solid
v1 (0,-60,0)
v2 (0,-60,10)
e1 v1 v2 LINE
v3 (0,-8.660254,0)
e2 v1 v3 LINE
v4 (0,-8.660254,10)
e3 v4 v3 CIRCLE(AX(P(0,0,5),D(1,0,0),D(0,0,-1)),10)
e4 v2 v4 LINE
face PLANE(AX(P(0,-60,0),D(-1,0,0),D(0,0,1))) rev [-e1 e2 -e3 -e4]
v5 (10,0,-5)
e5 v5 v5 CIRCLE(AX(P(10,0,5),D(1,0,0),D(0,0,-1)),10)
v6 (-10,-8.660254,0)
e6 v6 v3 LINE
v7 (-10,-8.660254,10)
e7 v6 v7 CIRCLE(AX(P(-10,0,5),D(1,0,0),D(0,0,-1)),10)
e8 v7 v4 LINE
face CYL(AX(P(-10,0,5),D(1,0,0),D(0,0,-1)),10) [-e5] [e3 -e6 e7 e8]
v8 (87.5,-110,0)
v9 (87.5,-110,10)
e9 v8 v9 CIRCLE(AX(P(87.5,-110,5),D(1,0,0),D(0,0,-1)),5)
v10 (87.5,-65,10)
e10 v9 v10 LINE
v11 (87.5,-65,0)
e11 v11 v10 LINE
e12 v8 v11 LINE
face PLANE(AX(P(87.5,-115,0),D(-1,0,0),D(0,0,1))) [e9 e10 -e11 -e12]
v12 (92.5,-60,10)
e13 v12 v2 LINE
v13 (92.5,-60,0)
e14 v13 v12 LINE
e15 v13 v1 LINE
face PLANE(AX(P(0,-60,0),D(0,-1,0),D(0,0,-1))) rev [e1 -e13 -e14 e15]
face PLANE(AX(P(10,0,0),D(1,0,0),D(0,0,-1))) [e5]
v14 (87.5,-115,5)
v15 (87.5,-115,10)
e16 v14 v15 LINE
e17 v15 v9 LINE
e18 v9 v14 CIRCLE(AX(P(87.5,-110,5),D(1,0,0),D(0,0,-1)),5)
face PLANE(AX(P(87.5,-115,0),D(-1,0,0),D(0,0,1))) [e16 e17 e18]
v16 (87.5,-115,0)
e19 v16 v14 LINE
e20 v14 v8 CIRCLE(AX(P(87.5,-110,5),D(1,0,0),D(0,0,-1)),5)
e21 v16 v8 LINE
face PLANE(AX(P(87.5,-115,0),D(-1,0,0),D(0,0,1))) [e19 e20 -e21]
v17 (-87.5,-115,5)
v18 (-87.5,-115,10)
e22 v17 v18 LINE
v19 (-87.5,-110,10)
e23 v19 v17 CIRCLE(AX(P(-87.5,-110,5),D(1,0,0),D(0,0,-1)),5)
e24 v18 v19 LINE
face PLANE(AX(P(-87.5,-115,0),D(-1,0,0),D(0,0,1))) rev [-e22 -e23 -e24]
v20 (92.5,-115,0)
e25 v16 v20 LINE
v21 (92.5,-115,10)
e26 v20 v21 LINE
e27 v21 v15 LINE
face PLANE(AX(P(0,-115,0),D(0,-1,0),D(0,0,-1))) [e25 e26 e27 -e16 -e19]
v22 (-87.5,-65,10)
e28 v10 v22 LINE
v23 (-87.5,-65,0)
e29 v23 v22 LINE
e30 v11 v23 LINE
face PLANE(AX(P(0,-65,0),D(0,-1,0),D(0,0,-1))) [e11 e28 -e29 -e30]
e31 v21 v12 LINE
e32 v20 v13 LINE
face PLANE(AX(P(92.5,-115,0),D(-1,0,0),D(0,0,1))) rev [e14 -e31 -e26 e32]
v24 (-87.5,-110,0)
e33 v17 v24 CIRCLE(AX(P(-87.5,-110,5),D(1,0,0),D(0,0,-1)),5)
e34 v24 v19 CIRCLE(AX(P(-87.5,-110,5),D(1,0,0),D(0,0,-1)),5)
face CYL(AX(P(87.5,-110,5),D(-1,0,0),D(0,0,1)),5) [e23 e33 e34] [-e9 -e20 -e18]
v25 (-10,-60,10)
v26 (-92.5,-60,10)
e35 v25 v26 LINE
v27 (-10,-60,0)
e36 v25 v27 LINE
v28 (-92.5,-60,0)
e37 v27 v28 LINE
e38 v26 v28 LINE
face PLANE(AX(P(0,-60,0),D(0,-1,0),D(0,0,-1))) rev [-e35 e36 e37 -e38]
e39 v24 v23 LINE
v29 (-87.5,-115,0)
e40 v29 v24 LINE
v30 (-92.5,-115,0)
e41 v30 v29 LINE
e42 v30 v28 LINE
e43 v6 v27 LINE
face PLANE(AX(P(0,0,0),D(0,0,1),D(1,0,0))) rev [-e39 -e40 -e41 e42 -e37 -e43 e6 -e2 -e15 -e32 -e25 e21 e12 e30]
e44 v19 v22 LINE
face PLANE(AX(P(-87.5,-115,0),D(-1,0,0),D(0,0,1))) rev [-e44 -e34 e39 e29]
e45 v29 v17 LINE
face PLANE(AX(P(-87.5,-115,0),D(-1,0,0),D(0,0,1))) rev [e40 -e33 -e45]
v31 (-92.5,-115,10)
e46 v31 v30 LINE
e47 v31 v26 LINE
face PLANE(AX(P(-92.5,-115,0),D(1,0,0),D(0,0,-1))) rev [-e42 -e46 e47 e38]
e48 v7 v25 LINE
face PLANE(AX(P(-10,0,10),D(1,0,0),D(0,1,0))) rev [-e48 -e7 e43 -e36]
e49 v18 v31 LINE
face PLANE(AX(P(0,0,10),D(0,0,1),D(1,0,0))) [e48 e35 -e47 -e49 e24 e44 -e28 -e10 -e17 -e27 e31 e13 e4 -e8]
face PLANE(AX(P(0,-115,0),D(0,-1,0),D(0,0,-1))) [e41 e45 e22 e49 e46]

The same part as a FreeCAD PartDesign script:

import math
import FreeCAD as App
import Part
import Sketcher
from FreeCAD import Vector
Q = App.Units.Quantity


def add_polygon(sketch, points):
    """Adds a closed chain of lines whose ends are joined by coincident constraints."""
    first, n = sketch.GeometryCount, len(points)
    for a, b in zip(points, points[1:] + points[:1]):
        sketch.addGeometry(Part.LineSegment(App.Vector(*a, 0), App.Vector(*b, 0)), False)
    for i in range(n):
        sketch.addConstraint(Sketcher.Constraint("Coincident", first + i, 2, first + (i + 1) % n, 1))

doc = App.newDocument("Part")
body = doc.addObject("PartDesign::Body", "Body")

sketch1 = body.newObject("Sketcher::SketchObject", "Sketch")
sketch1.AttachmentSupport = (doc.getObject("XY_Plane"), [""])
sketch1.MapMode = "FlatFace"
sketch1.addGeometry([
    Part.ArcOfCircle(Part.Circle(Vector(0, 0, 0), Vector(0, 0, 1), 10), math.radians(0), math.radians(180)),
    Part.LineSegment(Vector(-10, 0, 0), Vector(-10, -60, 0)),
    Part.LineSegment(Vector(-10, -60, 0), Vector(10, -60, 0)),
    Part.LineSegment(Vector(10, -60, 0), Vector(10, 0, 0)),
], False)
sketch1.addConstraint([
    Sketcher.Constraint("Tangent", 0, 2, 1, 1),
    Sketcher.Constraint("Coincident", 1, 2, 2, 1),
    Sketcher.Constraint("Coincident", 2, 2, 3, 1),
    Sketcher.Constraint("Tangent", 3, 2, 0, 1),
    Sketcher.Constraint("Vertical", 1),
    Sketcher.Constraint("Horizontal", 2),
    Sketcher.Constraint("Vertical", 3),
    Sketcher.Constraint("Coincident", 0, 3, -1, 1),
    Sketcher.Constraint("Radius", 0, Q("10 mm")),
    Sketcher.Constraint("DistanceY", 1, 2, 1, 1, Q("60 mm")),
])
pad1 = body.newObject("PartDesign::Pad", "Pad")
pad1.Profile = sketch1
pad1.Length = 10

sketch2 = body.newObject("Sketcher::SketchObject", "Sketch001")
sketch2.AttachmentSupport = (doc.getObject("XY_Plane"), [""])
sketch2.MapMode = "FlatFace"
sketch2.AttachmentOffset = App.Placement(Vector(0, 0, -10), App.Rotation())
sketch2.addGeometry(Part.Circle(Vector(0, 0, 0), Vector(0, 0, 1), 10), False)
sketch2.addConstraint([
    Sketcher.Constraint("Coincident", 0, 3, -1, 1),
    Sketcher.Constraint("Diameter", 0, Q("20 mm")),
])
pad2 = body.newObject("PartDesign::Pad", "Pad001")
pad2.Profile = sketch2
pad2.Length = 10
body2 = doc.addObject("PartDesign::Body", "Body001")

sketch3 = body2.newObject("Sketcher::SketchObject", "Sketch002")
sketch3.AttachmentSupport = (doc.getObject("XZ_Plane001"), [""])
sketch3.MapMode = "FlatFace"
sketch3.AttachmentOffset = App.Placement(Vector(0, 0, 60), App.Rotation())
add_polygon(sketch3, [(-92, 10), (-92, 0), (-88, 0), (-88, 10)])
sketch3.addConstraint([
    Sketcher.Constraint("Vertical", 0),
    Sketcher.Constraint("Horizontal", 1),
    Sketcher.Constraint("Vertical", 2),
    Sketcher.Constraint("Horizontal", 3),
    Sketcher.Constraint("PointOnObject", 0, 2, -1),
    Sketcher.Constraint("DistanceX", 1, 1, 1, 2, Q("5 mm")),
    Sketcher.Constraint("DistanceY", 0, 2, 0, 1, Q("10 mm")),
    Sketcher.Constraint("DistanceX", 0, 2, -1, 1, Q("92.5 mm")),
])
pad3 = body2.newObject("PartDesign::Pad", "Pad002")
pad3.Profile = sketch3
pad3.Length = 55
body3 = doc.addObject("PartDesign::Body", "Body002")

sketch4 = body3.newObject("Sketcher::SketchObject", "Sketch003")
sketch4.AttachmentSupport = (doc.getObject("XZ_Plane002"), [""])
sketch4.MapMode = "FlatFace"
sketch4.AttachmentOffset = App.Placement(Vector(0, 0, 60), App.Rotation())
add_polygon(sketch4, [(88, 10), (88, 0), (92, 0), (92, 10)])
sketch4.addConstraint([
    Sketcher.Constraint("Vertical", 0),
    Sketcher.Constraint("Horizontal", 1),
    Sketcher.Constraint("Vertical", 2),
    Sketcher.Constraint("Horizontal", 3),
    Sketcher.Constraint("PointOnObject", 0, 2, -1),
    Sketcher.Constraint("DistanceX", 1, 1, 1, 2, Q("5 mm")),
    Sketcher.Constraint("DistanceY", 0, 2, 0, 1, Q("10 mm")),
    Sketcher.Constraint("DistanceX", -1, 1, 0, 2, Q("87.5 mm")),
])
pad4 = body3.newObject("PartDesign::Pad", "Pad003")
pad4.Profile = sketch4
pad4.Length = 55
body.AllowCompound = True
doc.recompute()

boolean = body.newObject("PartDesign::Boolean", "Boolean")
boolean.Type = "Fuse"
boolean.addObjects([body2])
doc.recompute()

boolean2 = body.newObject("PartDesign::Boolean", "Boolean001")
boolean2.Type = "Fuse"
boolean2.addObjects([body3])

sketch5 = body.newObject("Sketcher::SketchObject", "Sketch004")
sketch5.AttachmentSupport = (doc.getObject("XZ_Plane"), [""])
sketch5.MapMode = "FlatFace"
sketch5.AttachmentOffset = App.Placement(Vector(0, 0, 60), App.Rotation())
add_polygon(sketch5, [(-92, 10), (-92, 0), (92, 0), (92, 10)])
sketch5.addConstraint([
    Sketcher.Constraint("Vertical", 0),
    Sketcher.Constraint("Horizontal", 1),
    Sketcher.Constraint("Vertical", 2),
    Sketcher.Constraint("Horizontal", 3),
    Sketcher.Constraint("Symmetric", 0, 2, 1, 2, -1, 1),
    Sketcher.Constraint("DistanceX", 1, 1, 1, 2, Q("185 mm")),
    Sketcher.Constraint("DistanceY", 0, 2, 0, 1, Q("10 mm")),
])
pad5 = body.newObject("PartDesign::Pad", "Pad004")
pad5.Profile = sketch5
pad5.Length = 5

sketch6 = body.newObject("Sketcher::SketchObject", "Sketch005")
sketch6.AttachmentSupport = (doc.getObject("YZ_Plane"), [""])
sketch6.MapMode = "FlatFace"
sketch6.AttachmentOffset = App.Placement(Vector(0, 0, -87.5), App.Rotation())
sketch6.addGeometry([
    Part.ArcOfCircle(Part.Circle(Vector(-110, 5, 0), Vector(0, 0, 1), 5), math.radians(-90), math.radians(-45)),
    Part.ArcOfCircle(Part.Circle(Vector(-110, 5, 0), Vector(0, 0, 1), 5), math.radians(-45), math.radians(0)),
    Part.ArcOfCircle(Part.Circle(Vector(-110, 5, 0), Vector(0, 0, 1), 5), math.radians(0), math.radians(45)),
    Part.ArcOfCircle(Part.Circle(Vector(-110, 5, 0), Vector(0, 0, 1), 5), math.radians(45), math.radians(135)),
    Part.ArcOfCircle(Part.Circle(Vector(-110, 5, 0), Vector(0, 0, 1), 5), math.radians(135), math.radians(225)),
    Part.ArcOfCircle(Part.Circle(Vector(-110, 5, 0), Vector(0, 0, 1), 5), math.radians(-135), math.radians(-90)),
], False)
sketch6.addConstraint([
    Sketcher.Constraint("Tangent", 0, 2, 1, 1),
    Sketcher.Constraint("Tangent", 1, 2, 2, 1),
    Sketcher.Constraint("Tangent", 2, 2, 3, 1),
    Sketcher.Constraint("Tangent", 3, 2, 4, 1),
    Sketcher.Constraint("Tangent", 4, 2, 5, 1),
    Sketcher.Constraint("Tangent", 5, 2, 0, 1),
    Sketcher.Constraint("Coincident", 2, 3, 0, 3),
    Sketcher.Constraint("Equal", 2, 3),
    Sketcher.Constraint("PointOnObject", 5, 2, -1),
    Sketcher.Constraint("Horizontal", 5, 3, 1, 2),
    Sketcher.Constraint("Horizontal", 2, 2, 3, 2),
    Sketcher.Constraint("Horizontal", 0, 2, 4, 2),
    Sketcher.Constraint("Vertical", 0, 2, 2, 2),
    Sketcher.Constraint("Vertical", 4, 3, 5, 2),
    Sketcher.Constraint("Radius", 0, Q("5 mm")),
    Sketcher.Constraint("DistanceX", 0, 3, -1, 1, Q("110 mm")),
    Sketcher.Constraint("DistanceX", 0, 2, -1, 1, Q("106.464466 mm")),
])
pad6 = body.newObject("PartDesign::Pad", "Pad005")
pad6.Profile = sketch6
pad6.Length = 175

sketch7 = body.newObject("Sketcher::SketchObject", "Sketch006")
sketch7.AttachmentSupport = (doc.getObject("XY_Plane"), [""])
sketch7.MapMode = "FlatFace"
sketch7.AttachmentOffset = App.Placement(Vector(0, 0, -10), App.Rotation())
add_polygon(sketch7, [(10, -10), (-10, -10), (-10, 10), (10, 10)])
sketch7.addConstraint([
    Sketcher.Constraint("Horizontal", 0),
    Sketcher.Constraint("Vertical", 1),
    Sketcher.Constraint("Horizontal", 2),
    Sketcher.Constraint("Vertical", 3),
    Sketcher.Constraint("Symmetric", 0, 2, 2, 2, -1, 1),
    Sketcher.Constraint("Equal", 2, 1),
    Sketcher.Constraint("DistanceX", 0, 2, 0, 1, Q("20 mm")),
])
pocket1 = body.newObject("PartDesign::Pocket", "Pocket")
pocket1.Profile = sketch7
pocket1.Length = 175
pocket1.Reversed = True

sketch8 = body.newObject("Sketcher::SketchObject", "Sketch007")
sketch8.AttachmentSupport = (doc.getObject("XZ_Plane"), [""])
sketch8.MapMode = "FlatFace"
sketch8.AttachmentOffset = App.Placement(Vector(0, 0, 10), App.Rotation())
add_polygon(sketch8, [(0, 0), (0, 10), (10, 10), (10, 0)])
sketch8.addConstraint([
    Sketcher.Constraint("Vertical", 0),
    Sketcher.Constraint("Horizontal", 1),
    Sketcher.Constraint("Vertical", 2),
    Sketcher.Constraint("Horizontal", 3),
    Sketcher.Constraint("Coincident", 3, 2, -1, 1),
    Sketcher.Constraint("Equal", 3, 0),
    Sketcher.Constraint("DistanceX", 1, 1, 1, 2, Q("10 mm")),
])
pocket2 = body.newObject("PartDesign::Pocket", "Pocket001")
pocket2.Profile = sketch8
pocket2.Length = 50
pocket2.Reversed = True

sketch9 = body.newObject("Sketcher::SketchObject", "Sketch008")
sketch9.AttachmentSupport = (doc.getObject("YZ_Plane"), [""])
sketch9.MapMode = "FlatFace"
sketch9.addGeometry([
    Part.ArcOfCircle(Part.Circle(Vector(0, 5, 0), Vector(0, 0, 1), 10), math.radians(-90), math.radians(150)),
    Part.LineSegment(Vector(-8.7, 10, 0), Vector(-10, 10, 0)),
    Part.LineSegment(Vector(-10, 10, 0), Vector(-10, 0, 0)),
    Part.LineSegment(Vector(-10, 0, 0), Vector(-8.7, 0, 0)),
    Part.ArcOfCircle(Part.Circle(Vector(0, 5, 0), Vector(0, 0, 1), 10), math.radians(-150), math.radians(-90)),
], False)
sketch9.addConstraint([
    Sketcher.Constraint("Coincident", 0, 2, 1, 1),
    Sketcher.Constraint("Coincident", 1, 2, 2, 1),
    Sketcher.Constraint("Coincident", 2, 2, 3, 1),
    Sketcher.Constraint("Coincident", 3, 2, 4, 1),
    Sketcher.Constraint("Tangent", 4, 2, 0, 1),
    Sketcher.Constraint("Horizontal", 1),
    Sketcher.Constraint("Vertical", 2),
    Sketcher.Constraint("Horizontal", 3),
    Sketcher.Constraint("Equal", 0, 4),
    Sketcher.Constraint("PointOnObject", 0, 3, -2),
    Sketcher.Constraint("PointOnObject", 2, 2, -1),
    Sketcher.Constraint("PointOnObject", 4, 2, -2),
    Sketcher.Constraint("Vertical", 0, 2, 3, 2),
    Sketcher.Constraint("Radius", 0, Q("10 mm")),
    Sketcher.Constraint("DistanceY", 2, 2, 2, 1, Q("10 mm")),
    Sketcher.Constraint("DistanceX", 1, 2, -1, 1, Q("10 mm")),
])
pad7 = body.newObject("PartDesign::Pad", "Pad006")
pad7.Profile = sketch9
pad7.Length = 10
pad7.Reversed = True

sketch10 = body.newObject("Sketcher::SketchObject", "Sketch009")
sketch10.AttachmentSupport = (doc.getObject("YZ_Plane"), [""])
sketch10.MapMode = "FlatFace"
sketch10.AttachmentOffset = App.Placement(Vector(0, 0, 10), App.Rotation())
sketch10.addGeometry([
    Part.ArcOfCircle(Part.Circle(Vector(0, 5, 0), Vector(0, 0, 1), 10), math.radians(-90), math.radians(150)),
    Part.ArcOfCircle(Part.Circle(Vector(0, 5, 0), Vector(0, 0, 1), 10), math.radians(150), math.radians(210)),
    Part.ArcOfCircle(Part.Circle(Vector(0, 5, 0), Vector(0, 0, 1), 10), math.radians(-150), math.radians(-90)),
], False)
sketch10.addConstraint([
    Sketcher.Constraint("Tangent", 0, 2, 1, 1),
    Sketcher.Constraint("Tangent", 1, 2, 2, 1),
    Sketcher.Constraint("Tangent", 2, 2, 0, 1),
    Sketcher.Constraint("PointOnObject", 0, 3, -2),
    Sketcher.Constraint("PointOnObject", 1, 2, -1),
    Sketcher.Constraint("PointOnObject", 2, 2, -2),
    Sketcher.Constraint("Vertical", 0, 2, 1, 2),
    Sketcher.Constraint("Radius", 0, Q("10 mm")),
    Sketcher.Constraint("DistanceY", -1, 1, 0, 3, Q("5 mm")),
])
pad8 = body.newObject("PartDesign::Pad", "Pad007")
pad8.Profile = sketch10
pad8.Length = 10
pad8.Reversed = True

doc.recompute()
